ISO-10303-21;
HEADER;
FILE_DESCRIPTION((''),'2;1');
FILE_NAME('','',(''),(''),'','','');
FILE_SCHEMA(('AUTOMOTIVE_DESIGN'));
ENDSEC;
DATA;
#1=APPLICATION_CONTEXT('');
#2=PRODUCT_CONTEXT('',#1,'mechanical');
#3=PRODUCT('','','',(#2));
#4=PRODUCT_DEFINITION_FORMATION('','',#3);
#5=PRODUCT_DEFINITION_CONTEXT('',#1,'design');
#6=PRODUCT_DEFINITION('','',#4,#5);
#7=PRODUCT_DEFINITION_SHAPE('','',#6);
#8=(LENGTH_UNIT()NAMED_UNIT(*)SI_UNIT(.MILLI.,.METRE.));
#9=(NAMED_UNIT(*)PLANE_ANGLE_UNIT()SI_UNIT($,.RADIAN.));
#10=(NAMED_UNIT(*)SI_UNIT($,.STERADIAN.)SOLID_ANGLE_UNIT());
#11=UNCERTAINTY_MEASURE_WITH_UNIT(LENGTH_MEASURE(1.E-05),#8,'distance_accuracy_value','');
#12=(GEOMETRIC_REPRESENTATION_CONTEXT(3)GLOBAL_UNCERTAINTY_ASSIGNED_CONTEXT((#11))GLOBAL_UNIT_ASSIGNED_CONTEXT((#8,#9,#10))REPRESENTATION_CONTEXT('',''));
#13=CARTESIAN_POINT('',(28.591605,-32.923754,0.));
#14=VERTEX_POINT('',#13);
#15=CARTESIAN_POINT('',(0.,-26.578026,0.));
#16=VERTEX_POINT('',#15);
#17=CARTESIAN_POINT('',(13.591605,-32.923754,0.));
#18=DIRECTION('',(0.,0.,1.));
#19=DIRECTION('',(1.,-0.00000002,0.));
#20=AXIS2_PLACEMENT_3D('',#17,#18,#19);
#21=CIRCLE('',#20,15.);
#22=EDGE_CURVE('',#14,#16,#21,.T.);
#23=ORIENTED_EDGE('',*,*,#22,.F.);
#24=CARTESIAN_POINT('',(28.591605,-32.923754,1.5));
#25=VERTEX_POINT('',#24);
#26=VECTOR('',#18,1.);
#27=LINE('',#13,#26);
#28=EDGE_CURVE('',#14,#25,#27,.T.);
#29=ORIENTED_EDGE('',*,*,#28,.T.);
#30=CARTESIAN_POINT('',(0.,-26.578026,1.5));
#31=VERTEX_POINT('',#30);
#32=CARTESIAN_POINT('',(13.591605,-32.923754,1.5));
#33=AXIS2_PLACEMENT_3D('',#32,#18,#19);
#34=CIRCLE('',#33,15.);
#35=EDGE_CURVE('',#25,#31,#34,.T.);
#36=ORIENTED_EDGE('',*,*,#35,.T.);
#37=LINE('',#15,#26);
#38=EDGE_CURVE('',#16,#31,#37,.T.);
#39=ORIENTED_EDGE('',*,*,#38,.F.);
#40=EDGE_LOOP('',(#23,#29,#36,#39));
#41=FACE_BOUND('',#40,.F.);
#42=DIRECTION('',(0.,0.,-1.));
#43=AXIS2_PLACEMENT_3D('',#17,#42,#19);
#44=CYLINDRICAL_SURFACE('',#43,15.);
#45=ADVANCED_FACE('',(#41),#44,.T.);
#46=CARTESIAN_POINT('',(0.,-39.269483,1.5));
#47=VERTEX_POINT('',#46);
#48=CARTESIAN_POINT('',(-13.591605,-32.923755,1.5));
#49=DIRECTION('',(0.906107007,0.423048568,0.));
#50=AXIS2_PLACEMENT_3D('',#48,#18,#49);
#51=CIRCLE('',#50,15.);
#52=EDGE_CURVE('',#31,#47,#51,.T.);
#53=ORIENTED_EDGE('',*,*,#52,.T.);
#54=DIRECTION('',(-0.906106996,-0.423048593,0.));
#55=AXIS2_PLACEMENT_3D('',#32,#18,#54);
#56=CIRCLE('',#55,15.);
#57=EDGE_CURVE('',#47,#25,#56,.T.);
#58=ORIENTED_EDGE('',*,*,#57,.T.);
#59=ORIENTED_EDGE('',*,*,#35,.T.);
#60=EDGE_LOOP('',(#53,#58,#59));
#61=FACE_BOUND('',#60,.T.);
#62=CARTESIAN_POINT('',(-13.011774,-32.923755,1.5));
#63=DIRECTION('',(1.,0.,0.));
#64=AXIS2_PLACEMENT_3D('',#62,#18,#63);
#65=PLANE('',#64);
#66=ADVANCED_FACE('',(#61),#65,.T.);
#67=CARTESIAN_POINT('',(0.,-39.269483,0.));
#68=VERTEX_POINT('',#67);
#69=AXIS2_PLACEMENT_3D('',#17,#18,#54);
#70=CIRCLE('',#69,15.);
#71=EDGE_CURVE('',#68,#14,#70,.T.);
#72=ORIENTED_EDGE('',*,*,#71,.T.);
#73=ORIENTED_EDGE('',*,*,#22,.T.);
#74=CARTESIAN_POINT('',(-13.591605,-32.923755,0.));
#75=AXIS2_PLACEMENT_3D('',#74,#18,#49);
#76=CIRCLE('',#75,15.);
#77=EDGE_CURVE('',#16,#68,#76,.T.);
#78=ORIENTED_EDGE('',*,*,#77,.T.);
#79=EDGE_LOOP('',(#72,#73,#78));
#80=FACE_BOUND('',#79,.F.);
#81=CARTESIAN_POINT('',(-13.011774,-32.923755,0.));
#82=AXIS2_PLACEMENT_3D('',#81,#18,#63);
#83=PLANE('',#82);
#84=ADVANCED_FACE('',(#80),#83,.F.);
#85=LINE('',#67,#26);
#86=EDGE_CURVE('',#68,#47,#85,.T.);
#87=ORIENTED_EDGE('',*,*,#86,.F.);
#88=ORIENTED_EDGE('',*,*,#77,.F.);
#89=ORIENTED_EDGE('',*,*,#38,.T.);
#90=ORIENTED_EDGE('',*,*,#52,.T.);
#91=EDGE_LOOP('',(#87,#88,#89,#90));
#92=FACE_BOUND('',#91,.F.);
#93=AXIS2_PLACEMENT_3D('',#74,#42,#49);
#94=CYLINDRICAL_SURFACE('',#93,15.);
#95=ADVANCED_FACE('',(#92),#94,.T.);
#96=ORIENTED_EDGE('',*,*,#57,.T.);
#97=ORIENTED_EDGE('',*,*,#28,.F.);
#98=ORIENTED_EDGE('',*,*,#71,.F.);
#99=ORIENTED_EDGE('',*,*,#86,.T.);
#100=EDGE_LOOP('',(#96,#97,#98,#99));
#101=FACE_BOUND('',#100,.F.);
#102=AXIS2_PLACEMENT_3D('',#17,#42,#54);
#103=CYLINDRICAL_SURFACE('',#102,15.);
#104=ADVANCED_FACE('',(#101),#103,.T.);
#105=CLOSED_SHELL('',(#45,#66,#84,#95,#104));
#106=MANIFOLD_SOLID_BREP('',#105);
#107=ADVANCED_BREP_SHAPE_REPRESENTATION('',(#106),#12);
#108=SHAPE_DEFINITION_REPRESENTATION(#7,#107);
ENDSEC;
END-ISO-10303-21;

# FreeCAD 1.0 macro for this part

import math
import FreeCAD as App
import Part
import Sketcher

V = App.Vector
Q = App.Units.Quantity

doc = App.newDocument("Part")
body = doc.addObject("PartDesign::Body", "Body")

# Sketch on XY plane
sketch1 = body.newObject("Sketcher::SketchObject", "Sketch")
sketch1.AttachmentSupport = (doc.getObject("XY_Plane"), [""])
sketch1.MapMode = "FlatFace"
sketch1.addGeometry([
    Part.ArcOfCircle(Part.Circle(V(-14, -33, 0), V(0, 0, 1), 15), math.radians(25), math.radians(335)),
    Part.ArcOfCircle(Part.Circle(V(14, -33, 0), V(0, 0, 1), 15), math.radians(-155), math.radians(0)),
    Part.ArcOfCircle(Part.Circle(V(14, -33, 0), V(0, 0, 1), 15), math.radians(0), math.radians(155)),
], False)
sketch1.addConstraint([
    Sketcher.Constraint("Coincident", 0, 2, 1, 1),
    Sketcher.Constraint("Tangent", 1, 2, 2, 1),
    Sketcher.Constraint("Coincident", 2, 2, 0, 1),
    Sketcher.Constraint("Equal", 0, 1),
    Sketcher.Constraint("Equal", 1, 2),
    Sketcher.Constraint("Symmetric", 0, 3, 1, 3, -2),
    Sketcher.Constraint("Horizontal", 2, 3, 1, 2),
    Sketcher.Constraint("Radius", 0, Q("15 mm")),
    Sketcher.Constraint("DistanceX", 0, 3, 1, 3, Q("27.18321 mm")),
    Sketcher.Constraint("DistanceY", 0, 3, -1, 1, Q("32.923755 mm")),
])
pad1 = body.newObject("PartDesign::Pad", "Pad")
pad1.Profile = sketch1
pad1.Length = 1.5

doc.recompute()
